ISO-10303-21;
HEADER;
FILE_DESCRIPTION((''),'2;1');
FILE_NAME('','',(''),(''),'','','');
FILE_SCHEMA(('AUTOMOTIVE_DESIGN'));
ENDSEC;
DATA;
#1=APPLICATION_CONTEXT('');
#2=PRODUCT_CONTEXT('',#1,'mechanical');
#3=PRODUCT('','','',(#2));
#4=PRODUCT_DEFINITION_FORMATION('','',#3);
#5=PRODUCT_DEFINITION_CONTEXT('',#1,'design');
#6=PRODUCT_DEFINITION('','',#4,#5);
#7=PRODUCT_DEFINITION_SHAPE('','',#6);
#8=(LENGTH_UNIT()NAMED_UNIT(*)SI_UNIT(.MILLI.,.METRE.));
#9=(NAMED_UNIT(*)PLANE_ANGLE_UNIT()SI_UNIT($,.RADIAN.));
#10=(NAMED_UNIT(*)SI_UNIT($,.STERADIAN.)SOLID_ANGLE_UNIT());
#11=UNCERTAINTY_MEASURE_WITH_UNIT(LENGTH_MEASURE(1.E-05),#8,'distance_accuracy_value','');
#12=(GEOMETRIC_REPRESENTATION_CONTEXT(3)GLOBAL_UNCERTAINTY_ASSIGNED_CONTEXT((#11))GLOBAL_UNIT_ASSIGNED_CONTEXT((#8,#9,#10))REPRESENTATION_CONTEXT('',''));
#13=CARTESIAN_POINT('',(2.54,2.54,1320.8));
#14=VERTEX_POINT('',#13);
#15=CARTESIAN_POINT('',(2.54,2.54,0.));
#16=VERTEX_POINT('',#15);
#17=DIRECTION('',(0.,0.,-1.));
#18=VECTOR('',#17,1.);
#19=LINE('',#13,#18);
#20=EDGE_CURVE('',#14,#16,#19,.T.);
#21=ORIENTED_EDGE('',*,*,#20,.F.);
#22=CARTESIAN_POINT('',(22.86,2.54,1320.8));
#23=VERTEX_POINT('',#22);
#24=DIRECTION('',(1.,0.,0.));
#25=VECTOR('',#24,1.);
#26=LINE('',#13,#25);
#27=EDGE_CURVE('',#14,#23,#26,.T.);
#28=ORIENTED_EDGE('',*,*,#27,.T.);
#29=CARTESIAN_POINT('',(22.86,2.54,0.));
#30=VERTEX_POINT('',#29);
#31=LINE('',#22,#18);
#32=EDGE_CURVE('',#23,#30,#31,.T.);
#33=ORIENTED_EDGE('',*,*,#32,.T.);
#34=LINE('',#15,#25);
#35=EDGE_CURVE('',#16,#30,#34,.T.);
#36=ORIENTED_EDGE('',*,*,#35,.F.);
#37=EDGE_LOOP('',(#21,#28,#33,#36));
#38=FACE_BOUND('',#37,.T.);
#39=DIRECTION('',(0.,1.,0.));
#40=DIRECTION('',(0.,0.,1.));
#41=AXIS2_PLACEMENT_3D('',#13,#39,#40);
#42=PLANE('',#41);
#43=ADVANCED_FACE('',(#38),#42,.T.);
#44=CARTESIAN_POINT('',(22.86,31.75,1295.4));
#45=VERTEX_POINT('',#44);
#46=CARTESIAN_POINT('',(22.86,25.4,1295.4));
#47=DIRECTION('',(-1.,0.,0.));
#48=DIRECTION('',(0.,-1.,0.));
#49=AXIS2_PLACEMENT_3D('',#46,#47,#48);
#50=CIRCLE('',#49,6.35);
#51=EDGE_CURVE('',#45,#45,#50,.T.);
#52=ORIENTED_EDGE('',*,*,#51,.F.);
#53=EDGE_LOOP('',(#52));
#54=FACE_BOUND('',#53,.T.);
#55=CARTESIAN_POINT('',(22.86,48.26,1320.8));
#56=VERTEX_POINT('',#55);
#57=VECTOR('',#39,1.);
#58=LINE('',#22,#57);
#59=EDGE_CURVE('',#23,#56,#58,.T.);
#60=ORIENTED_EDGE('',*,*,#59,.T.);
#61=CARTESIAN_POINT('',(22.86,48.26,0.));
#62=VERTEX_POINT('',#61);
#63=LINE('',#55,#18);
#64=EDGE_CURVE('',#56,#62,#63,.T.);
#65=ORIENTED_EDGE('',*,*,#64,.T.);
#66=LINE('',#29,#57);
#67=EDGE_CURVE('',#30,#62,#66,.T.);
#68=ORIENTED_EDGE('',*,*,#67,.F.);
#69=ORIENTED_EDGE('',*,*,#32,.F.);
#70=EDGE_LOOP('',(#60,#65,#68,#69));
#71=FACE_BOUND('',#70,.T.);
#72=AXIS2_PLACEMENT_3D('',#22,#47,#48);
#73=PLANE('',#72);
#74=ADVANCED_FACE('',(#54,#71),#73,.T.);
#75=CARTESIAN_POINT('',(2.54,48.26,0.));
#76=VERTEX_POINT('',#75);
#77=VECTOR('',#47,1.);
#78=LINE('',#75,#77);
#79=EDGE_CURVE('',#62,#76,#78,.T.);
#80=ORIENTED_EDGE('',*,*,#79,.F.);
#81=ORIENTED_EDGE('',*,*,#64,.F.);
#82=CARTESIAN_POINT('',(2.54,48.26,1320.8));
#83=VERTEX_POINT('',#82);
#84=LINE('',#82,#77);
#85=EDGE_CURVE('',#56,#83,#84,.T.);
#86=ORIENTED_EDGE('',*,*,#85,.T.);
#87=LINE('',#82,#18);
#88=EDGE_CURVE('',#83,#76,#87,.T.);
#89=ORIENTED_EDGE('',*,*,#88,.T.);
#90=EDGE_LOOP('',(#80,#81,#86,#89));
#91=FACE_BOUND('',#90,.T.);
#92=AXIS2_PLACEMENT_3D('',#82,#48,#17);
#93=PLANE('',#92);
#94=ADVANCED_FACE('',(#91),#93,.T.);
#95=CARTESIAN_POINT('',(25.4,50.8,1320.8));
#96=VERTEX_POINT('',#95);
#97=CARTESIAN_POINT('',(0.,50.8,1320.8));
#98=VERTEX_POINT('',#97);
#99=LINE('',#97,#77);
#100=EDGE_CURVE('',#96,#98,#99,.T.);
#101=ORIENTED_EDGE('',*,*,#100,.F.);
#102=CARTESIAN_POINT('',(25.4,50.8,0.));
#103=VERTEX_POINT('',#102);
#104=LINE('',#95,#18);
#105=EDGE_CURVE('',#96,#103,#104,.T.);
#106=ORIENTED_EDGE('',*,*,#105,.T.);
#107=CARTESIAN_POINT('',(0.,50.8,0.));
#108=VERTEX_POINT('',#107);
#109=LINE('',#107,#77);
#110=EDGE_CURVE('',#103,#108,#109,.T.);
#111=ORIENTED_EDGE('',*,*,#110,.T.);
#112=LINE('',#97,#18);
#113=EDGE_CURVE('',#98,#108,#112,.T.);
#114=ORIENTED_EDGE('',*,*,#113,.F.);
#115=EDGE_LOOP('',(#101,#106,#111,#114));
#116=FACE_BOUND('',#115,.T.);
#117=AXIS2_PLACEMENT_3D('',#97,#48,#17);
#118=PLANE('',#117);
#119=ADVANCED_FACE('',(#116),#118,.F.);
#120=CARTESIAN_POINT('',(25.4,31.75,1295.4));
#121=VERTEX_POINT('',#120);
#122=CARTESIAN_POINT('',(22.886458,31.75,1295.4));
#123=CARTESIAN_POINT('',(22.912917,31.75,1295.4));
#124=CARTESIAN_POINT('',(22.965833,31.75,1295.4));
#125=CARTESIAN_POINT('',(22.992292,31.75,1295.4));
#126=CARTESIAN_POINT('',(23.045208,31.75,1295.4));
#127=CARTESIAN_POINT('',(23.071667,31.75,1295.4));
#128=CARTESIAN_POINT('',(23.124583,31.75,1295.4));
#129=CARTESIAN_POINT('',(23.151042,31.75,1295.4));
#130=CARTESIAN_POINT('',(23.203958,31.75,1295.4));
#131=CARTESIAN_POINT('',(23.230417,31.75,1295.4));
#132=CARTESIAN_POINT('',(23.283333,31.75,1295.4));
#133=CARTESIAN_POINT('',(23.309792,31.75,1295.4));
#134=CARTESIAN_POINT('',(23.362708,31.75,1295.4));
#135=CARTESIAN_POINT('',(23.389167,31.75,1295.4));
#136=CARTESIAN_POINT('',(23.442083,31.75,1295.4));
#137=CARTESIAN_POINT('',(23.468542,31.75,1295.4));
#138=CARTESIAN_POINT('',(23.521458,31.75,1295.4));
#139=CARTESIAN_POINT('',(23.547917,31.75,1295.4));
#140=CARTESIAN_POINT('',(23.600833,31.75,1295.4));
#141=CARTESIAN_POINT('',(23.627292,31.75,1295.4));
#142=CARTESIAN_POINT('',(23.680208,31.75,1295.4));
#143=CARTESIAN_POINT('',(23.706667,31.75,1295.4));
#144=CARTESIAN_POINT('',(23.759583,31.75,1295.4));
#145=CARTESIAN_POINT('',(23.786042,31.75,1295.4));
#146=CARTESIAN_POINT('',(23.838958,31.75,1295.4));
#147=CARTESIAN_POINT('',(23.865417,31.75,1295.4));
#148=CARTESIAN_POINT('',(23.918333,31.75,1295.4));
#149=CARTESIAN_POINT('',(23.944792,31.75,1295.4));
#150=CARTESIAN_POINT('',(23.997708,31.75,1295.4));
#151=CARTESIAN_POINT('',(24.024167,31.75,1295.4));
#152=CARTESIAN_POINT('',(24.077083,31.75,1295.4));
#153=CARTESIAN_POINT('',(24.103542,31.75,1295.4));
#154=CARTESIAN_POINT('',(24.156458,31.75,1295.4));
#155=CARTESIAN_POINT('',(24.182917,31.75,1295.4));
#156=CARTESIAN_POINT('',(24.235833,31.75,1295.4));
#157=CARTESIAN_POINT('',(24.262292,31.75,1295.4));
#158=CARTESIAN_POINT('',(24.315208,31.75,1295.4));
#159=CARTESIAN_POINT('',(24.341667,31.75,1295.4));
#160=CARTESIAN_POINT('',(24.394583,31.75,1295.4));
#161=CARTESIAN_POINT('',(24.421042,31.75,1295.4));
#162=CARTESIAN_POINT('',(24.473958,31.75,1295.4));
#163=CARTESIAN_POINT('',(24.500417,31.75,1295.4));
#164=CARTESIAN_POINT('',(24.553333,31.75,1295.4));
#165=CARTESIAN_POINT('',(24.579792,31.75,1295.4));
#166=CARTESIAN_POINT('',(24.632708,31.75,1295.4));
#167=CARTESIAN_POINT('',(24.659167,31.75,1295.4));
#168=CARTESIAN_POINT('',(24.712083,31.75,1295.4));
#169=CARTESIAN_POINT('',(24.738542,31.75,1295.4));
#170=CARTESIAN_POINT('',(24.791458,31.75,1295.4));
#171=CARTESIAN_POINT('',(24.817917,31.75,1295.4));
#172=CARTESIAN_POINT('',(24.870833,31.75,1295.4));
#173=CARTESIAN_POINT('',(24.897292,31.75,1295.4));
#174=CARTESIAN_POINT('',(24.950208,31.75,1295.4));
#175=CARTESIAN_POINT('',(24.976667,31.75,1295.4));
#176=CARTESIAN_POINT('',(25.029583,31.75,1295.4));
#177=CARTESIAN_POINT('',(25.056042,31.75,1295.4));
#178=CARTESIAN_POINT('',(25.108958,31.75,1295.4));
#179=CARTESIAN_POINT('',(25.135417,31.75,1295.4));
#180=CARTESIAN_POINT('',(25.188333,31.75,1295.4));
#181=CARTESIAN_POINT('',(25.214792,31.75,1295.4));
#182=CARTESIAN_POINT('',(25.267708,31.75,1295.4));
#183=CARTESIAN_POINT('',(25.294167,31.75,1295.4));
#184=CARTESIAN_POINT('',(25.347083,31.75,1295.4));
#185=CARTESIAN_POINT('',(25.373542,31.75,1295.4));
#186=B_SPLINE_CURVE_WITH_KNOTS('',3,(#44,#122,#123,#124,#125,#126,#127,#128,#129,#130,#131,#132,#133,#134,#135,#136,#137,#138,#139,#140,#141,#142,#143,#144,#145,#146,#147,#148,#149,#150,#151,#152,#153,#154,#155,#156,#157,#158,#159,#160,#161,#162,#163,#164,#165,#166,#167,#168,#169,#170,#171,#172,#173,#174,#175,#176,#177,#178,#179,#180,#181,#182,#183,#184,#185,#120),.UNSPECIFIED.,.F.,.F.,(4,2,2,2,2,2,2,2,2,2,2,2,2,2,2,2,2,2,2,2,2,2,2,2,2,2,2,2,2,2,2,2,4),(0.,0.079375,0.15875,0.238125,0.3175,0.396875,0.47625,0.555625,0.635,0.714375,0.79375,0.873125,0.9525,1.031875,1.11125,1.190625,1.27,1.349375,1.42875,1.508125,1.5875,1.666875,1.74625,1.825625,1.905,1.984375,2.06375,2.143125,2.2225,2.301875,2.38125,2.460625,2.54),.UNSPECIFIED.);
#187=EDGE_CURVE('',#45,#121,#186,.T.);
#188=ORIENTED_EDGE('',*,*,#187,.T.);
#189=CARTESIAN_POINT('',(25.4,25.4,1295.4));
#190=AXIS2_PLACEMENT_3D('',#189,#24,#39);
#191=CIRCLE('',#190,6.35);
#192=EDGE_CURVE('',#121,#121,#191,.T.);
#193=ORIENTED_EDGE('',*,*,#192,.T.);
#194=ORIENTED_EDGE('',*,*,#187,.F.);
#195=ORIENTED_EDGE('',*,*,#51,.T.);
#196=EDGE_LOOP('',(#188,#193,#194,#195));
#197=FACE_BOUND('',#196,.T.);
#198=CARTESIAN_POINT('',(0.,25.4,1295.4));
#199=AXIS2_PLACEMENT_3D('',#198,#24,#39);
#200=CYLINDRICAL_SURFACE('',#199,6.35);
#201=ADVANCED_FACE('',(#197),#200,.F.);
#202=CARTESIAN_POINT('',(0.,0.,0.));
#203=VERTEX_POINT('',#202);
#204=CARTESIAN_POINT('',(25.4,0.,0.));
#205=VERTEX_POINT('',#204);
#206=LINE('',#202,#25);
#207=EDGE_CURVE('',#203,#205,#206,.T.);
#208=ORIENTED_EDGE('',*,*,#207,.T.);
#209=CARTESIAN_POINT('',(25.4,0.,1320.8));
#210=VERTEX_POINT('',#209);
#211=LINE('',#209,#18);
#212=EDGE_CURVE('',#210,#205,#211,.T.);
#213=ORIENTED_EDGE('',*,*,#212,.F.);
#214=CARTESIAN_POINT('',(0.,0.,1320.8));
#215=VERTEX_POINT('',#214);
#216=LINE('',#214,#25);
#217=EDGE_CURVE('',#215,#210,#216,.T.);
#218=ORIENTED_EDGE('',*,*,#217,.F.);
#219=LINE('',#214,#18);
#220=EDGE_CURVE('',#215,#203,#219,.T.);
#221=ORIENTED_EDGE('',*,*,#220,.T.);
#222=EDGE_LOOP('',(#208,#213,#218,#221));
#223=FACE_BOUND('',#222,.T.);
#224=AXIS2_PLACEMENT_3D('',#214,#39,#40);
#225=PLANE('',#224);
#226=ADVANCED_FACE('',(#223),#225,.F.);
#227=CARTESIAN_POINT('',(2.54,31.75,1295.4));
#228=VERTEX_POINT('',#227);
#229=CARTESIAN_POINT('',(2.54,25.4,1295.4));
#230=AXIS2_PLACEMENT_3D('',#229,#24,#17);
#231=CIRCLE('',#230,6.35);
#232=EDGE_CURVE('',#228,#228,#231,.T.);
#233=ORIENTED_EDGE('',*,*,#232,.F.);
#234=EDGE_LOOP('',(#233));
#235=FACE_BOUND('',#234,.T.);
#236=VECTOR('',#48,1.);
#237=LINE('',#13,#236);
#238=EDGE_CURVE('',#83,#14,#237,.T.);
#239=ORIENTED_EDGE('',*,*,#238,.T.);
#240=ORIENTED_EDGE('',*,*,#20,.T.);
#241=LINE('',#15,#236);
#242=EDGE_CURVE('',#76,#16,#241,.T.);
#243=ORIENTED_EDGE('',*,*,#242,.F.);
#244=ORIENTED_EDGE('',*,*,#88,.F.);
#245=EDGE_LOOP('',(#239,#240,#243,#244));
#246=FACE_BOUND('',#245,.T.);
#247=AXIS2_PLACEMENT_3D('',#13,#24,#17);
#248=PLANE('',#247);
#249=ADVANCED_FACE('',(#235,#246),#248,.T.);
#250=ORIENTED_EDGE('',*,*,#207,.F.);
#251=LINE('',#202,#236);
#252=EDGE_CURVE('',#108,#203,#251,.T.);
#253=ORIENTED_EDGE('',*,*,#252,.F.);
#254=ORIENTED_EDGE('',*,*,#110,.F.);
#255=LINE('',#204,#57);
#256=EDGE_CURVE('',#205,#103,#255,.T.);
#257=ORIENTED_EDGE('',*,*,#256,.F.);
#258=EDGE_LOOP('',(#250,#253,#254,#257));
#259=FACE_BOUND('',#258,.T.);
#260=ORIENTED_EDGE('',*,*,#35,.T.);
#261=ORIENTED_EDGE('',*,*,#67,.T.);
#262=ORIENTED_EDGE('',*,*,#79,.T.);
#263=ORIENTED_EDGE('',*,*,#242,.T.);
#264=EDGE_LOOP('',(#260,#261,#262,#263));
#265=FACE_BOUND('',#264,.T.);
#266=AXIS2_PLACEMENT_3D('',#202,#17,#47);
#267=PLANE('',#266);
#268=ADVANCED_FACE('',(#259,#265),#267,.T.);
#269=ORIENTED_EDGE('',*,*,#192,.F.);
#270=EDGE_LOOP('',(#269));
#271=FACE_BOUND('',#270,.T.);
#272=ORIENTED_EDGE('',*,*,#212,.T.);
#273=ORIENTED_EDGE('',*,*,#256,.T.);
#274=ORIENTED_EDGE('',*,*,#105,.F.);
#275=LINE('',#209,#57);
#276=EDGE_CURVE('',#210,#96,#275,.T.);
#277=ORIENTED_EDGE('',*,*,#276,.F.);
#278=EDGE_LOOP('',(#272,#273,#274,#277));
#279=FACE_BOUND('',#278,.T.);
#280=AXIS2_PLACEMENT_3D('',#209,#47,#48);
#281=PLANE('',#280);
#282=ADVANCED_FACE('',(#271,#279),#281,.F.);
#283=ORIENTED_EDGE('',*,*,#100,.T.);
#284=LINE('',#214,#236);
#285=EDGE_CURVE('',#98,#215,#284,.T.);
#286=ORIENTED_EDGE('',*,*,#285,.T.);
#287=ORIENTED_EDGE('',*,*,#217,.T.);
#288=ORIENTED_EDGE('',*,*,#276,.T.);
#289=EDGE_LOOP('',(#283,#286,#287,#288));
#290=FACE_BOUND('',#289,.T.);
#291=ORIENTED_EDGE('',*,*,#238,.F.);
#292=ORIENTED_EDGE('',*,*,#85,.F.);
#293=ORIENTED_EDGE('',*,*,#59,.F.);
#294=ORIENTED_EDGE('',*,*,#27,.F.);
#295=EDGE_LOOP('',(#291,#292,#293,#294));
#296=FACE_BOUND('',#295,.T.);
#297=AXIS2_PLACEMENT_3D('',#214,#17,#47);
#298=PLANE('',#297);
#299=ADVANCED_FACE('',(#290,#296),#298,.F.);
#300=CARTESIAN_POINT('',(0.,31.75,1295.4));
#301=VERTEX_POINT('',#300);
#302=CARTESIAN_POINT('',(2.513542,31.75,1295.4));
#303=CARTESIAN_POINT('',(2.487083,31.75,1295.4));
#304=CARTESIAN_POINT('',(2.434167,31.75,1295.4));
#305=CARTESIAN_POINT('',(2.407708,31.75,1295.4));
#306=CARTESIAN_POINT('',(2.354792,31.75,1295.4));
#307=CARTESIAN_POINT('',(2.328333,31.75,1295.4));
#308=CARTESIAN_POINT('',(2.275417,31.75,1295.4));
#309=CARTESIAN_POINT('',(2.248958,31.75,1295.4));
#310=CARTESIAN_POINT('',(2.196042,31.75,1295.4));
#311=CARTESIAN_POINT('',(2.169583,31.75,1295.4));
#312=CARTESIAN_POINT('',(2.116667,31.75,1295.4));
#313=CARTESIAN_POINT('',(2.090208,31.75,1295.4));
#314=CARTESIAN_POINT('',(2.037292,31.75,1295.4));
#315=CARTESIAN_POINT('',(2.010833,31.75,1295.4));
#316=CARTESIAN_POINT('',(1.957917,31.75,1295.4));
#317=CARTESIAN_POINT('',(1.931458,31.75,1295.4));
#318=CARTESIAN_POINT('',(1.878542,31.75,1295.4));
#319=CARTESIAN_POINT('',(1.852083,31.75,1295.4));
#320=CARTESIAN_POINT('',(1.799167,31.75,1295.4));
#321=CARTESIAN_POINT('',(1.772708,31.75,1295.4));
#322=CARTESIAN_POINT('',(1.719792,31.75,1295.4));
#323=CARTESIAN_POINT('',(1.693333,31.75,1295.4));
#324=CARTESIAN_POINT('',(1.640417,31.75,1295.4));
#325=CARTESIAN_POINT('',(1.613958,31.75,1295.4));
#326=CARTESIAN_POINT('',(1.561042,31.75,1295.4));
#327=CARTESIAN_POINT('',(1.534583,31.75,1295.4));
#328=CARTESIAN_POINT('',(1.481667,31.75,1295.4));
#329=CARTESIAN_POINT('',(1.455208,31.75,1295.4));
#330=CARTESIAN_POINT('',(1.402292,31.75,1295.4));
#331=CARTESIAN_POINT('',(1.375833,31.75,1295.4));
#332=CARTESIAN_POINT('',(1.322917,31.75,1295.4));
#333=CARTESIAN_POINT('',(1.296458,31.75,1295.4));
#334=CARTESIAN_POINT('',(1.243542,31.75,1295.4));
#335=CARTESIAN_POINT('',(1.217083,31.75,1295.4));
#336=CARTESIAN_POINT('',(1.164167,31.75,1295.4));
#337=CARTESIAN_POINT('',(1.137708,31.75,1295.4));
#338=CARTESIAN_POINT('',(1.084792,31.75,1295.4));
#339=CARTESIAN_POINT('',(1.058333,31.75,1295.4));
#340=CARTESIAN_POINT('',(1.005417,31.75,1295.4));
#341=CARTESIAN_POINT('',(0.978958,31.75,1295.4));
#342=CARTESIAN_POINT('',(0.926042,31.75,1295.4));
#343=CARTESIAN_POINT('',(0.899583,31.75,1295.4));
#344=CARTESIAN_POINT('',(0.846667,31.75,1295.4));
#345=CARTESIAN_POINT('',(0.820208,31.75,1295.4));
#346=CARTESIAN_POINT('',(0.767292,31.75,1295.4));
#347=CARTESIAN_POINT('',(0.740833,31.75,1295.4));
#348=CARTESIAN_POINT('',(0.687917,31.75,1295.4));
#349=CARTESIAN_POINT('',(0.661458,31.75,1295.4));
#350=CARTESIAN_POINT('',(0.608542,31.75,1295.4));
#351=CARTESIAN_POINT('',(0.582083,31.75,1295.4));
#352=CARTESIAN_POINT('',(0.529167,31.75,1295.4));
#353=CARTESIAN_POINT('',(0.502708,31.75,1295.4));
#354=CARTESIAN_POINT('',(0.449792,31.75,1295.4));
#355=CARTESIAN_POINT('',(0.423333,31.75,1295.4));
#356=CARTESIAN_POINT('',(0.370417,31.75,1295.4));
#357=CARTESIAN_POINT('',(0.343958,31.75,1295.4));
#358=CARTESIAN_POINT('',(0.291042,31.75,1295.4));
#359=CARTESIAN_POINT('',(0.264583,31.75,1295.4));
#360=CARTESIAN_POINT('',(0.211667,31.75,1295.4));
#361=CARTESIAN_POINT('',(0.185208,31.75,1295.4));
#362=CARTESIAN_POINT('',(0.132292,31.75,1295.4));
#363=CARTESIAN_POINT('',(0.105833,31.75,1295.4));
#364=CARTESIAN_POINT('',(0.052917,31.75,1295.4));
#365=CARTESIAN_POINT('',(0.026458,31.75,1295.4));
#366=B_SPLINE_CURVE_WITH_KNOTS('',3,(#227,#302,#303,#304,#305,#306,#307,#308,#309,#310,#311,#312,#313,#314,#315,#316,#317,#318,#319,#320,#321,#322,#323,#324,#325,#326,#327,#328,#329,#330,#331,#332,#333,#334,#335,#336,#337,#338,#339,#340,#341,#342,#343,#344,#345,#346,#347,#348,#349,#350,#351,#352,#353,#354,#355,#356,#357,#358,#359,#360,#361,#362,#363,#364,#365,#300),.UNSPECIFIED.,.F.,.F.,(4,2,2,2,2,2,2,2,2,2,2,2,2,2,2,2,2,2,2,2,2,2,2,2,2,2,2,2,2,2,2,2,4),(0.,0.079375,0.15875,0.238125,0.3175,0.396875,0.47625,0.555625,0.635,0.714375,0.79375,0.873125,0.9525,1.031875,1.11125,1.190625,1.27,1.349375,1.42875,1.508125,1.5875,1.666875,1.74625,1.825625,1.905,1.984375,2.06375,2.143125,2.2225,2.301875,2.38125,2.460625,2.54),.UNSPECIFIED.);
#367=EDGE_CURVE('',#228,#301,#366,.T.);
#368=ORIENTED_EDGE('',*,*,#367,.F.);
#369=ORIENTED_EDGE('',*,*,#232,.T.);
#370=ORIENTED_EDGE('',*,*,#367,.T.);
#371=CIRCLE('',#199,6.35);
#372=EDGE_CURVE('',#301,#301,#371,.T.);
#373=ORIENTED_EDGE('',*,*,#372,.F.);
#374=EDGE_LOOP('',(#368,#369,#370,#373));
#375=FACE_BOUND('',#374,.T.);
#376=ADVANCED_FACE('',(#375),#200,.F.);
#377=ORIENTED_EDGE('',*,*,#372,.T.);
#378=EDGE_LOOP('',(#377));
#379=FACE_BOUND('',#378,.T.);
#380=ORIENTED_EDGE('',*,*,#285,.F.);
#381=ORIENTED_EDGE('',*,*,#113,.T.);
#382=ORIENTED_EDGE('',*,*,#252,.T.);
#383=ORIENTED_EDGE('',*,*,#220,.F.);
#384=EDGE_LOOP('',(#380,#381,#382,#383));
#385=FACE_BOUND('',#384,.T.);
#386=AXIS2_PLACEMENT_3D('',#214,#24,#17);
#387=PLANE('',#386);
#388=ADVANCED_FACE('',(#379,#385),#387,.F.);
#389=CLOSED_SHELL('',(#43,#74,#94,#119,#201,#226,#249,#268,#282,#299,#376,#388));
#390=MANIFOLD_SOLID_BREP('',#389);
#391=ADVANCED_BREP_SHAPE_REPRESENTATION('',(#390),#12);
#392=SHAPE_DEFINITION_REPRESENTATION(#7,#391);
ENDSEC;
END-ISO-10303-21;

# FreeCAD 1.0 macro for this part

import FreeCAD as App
import Part
import Sketcher
from FreeCAD import Vector
Q = App.Units.Quantity


def add_polygon(sketch, points):
    """Adds a closed chain of lines whose ends are joined by coincident constraints."""
    first, n = sketch.GeometryCount, len(points)
    for a, b in zip(points, points[1:] + points[:1]):
        sketch.addGeometry(Part.LineSegment(App.Vector(*a, 0), App.Vector(*b, 0)), False)
    for i in range(n):
        sketch.addConstraint(Sketcher.Constraint("Coincident", first + i, 2, first + (i + 1) % n, 1))

doc = App.newDocument("Part")
body = doc.addObject("PartDesign::Body", "Body")

sketch1 = body.newObject("Sketcher::SketchObject", "Sketch")
sketch1.AttachmentSupport = (doc.getObject("XY_Plane"), [""])
sketch1.MapMode = "FlatFace"
add_polygon(sketch1, [(0, 51), (0, 0), (25, 0), (25, 51)])
add_polygon(sketch1, [(23, 3), (3, 3), (3, 48), (23, 48)])
sketch1.addConstraint(Sketcher.Constraint("Vertical", 0))
sketch1.addConstraint(Sketcher.Constraint("Horizontal", 1))
sketch1.addConstraint(Sketcher.Constraint("Vertical", 2))
sketch1.addConstraint(Sketcher.Constraint("Horizontal", 3))
sketch1.addConstraint(Sketcher.Constraint("Horizontal", 4))
sketch1.addConstraint(Sketcher.Constraint("Vertical", 5))
sketch1.addConstraint(Sketcher.Constraint("Horizontal", 6))
sketch1.addConstraint(Sketcher.Constraint("Vertical", 7))
sketch1.addConstraint(Sketcher.Constraint("Coincident", 0, 2, -1, 1))
sketch1.addConstraint(Sketcher.Constraint("DistanceX", 1, 1, 1, 2, Q("1 in")))
sketch1.addConstraint(Sketcher.Constraint("DistanceY", 0, 2, 0, 1, Q("2 in")))
sketch1.addConstraint(Sketcher.Constraint("DistanceX", 4, 2, 4, 1, Q("0.8 in")))
sketch1.addConstraint(Sketcher.Constraint("DistanceY", 5, 1, 5, 2, Q("1.8 in")))
sketch1.addConstraint(Sketcher.Constraint("DistanceX", -1, 1, 4, 2, Q("0.1 in")))
sketch1.addConstraint(Sketcher.Constraint("DistanceY", -1, 1, 4, 2, Q("0.1 in")))
pad1 = body.newObject("PartDesign::Pad", "Pad")
pad1.Profile = sketch1
pad1.Length = Q("52 in")

sketch2 = body.newObject("Sketcher::SketchObject", "Sketch001")
sketch2.AttachmentSupport = (doc.getObject("YZ_Plane"), [""])
sketch2.MapMode = "FlatFace"
sketch2.AttachmentOffset = App.Placement(Vector(0, 0, 1 * 25.4), App.Rotation())
sketch2.addGeometry(Part.Circle(Vector(25, 1295, 0), Vector(0, 0, 1), 6), False)
sketch2.addConstraint(Sketcher.Constraint("Diameter", 0, Q("0.5 in")))
sketch2.addConstraint(Sketcher.Constraint("DistanceX", -1, 1, 0, 3, Q("1 in")))
sketch2.addConstraint(Sketcher.Constraint("DistanceY", -1, 1, 0, 3, Q("51 in")))
pocket1 = body.newObject("PartDesign::Pocket", "Pocket")
pocket1.Profile = sketch2
pocket1.Type = "ThroughAll"

doc.recompute()
